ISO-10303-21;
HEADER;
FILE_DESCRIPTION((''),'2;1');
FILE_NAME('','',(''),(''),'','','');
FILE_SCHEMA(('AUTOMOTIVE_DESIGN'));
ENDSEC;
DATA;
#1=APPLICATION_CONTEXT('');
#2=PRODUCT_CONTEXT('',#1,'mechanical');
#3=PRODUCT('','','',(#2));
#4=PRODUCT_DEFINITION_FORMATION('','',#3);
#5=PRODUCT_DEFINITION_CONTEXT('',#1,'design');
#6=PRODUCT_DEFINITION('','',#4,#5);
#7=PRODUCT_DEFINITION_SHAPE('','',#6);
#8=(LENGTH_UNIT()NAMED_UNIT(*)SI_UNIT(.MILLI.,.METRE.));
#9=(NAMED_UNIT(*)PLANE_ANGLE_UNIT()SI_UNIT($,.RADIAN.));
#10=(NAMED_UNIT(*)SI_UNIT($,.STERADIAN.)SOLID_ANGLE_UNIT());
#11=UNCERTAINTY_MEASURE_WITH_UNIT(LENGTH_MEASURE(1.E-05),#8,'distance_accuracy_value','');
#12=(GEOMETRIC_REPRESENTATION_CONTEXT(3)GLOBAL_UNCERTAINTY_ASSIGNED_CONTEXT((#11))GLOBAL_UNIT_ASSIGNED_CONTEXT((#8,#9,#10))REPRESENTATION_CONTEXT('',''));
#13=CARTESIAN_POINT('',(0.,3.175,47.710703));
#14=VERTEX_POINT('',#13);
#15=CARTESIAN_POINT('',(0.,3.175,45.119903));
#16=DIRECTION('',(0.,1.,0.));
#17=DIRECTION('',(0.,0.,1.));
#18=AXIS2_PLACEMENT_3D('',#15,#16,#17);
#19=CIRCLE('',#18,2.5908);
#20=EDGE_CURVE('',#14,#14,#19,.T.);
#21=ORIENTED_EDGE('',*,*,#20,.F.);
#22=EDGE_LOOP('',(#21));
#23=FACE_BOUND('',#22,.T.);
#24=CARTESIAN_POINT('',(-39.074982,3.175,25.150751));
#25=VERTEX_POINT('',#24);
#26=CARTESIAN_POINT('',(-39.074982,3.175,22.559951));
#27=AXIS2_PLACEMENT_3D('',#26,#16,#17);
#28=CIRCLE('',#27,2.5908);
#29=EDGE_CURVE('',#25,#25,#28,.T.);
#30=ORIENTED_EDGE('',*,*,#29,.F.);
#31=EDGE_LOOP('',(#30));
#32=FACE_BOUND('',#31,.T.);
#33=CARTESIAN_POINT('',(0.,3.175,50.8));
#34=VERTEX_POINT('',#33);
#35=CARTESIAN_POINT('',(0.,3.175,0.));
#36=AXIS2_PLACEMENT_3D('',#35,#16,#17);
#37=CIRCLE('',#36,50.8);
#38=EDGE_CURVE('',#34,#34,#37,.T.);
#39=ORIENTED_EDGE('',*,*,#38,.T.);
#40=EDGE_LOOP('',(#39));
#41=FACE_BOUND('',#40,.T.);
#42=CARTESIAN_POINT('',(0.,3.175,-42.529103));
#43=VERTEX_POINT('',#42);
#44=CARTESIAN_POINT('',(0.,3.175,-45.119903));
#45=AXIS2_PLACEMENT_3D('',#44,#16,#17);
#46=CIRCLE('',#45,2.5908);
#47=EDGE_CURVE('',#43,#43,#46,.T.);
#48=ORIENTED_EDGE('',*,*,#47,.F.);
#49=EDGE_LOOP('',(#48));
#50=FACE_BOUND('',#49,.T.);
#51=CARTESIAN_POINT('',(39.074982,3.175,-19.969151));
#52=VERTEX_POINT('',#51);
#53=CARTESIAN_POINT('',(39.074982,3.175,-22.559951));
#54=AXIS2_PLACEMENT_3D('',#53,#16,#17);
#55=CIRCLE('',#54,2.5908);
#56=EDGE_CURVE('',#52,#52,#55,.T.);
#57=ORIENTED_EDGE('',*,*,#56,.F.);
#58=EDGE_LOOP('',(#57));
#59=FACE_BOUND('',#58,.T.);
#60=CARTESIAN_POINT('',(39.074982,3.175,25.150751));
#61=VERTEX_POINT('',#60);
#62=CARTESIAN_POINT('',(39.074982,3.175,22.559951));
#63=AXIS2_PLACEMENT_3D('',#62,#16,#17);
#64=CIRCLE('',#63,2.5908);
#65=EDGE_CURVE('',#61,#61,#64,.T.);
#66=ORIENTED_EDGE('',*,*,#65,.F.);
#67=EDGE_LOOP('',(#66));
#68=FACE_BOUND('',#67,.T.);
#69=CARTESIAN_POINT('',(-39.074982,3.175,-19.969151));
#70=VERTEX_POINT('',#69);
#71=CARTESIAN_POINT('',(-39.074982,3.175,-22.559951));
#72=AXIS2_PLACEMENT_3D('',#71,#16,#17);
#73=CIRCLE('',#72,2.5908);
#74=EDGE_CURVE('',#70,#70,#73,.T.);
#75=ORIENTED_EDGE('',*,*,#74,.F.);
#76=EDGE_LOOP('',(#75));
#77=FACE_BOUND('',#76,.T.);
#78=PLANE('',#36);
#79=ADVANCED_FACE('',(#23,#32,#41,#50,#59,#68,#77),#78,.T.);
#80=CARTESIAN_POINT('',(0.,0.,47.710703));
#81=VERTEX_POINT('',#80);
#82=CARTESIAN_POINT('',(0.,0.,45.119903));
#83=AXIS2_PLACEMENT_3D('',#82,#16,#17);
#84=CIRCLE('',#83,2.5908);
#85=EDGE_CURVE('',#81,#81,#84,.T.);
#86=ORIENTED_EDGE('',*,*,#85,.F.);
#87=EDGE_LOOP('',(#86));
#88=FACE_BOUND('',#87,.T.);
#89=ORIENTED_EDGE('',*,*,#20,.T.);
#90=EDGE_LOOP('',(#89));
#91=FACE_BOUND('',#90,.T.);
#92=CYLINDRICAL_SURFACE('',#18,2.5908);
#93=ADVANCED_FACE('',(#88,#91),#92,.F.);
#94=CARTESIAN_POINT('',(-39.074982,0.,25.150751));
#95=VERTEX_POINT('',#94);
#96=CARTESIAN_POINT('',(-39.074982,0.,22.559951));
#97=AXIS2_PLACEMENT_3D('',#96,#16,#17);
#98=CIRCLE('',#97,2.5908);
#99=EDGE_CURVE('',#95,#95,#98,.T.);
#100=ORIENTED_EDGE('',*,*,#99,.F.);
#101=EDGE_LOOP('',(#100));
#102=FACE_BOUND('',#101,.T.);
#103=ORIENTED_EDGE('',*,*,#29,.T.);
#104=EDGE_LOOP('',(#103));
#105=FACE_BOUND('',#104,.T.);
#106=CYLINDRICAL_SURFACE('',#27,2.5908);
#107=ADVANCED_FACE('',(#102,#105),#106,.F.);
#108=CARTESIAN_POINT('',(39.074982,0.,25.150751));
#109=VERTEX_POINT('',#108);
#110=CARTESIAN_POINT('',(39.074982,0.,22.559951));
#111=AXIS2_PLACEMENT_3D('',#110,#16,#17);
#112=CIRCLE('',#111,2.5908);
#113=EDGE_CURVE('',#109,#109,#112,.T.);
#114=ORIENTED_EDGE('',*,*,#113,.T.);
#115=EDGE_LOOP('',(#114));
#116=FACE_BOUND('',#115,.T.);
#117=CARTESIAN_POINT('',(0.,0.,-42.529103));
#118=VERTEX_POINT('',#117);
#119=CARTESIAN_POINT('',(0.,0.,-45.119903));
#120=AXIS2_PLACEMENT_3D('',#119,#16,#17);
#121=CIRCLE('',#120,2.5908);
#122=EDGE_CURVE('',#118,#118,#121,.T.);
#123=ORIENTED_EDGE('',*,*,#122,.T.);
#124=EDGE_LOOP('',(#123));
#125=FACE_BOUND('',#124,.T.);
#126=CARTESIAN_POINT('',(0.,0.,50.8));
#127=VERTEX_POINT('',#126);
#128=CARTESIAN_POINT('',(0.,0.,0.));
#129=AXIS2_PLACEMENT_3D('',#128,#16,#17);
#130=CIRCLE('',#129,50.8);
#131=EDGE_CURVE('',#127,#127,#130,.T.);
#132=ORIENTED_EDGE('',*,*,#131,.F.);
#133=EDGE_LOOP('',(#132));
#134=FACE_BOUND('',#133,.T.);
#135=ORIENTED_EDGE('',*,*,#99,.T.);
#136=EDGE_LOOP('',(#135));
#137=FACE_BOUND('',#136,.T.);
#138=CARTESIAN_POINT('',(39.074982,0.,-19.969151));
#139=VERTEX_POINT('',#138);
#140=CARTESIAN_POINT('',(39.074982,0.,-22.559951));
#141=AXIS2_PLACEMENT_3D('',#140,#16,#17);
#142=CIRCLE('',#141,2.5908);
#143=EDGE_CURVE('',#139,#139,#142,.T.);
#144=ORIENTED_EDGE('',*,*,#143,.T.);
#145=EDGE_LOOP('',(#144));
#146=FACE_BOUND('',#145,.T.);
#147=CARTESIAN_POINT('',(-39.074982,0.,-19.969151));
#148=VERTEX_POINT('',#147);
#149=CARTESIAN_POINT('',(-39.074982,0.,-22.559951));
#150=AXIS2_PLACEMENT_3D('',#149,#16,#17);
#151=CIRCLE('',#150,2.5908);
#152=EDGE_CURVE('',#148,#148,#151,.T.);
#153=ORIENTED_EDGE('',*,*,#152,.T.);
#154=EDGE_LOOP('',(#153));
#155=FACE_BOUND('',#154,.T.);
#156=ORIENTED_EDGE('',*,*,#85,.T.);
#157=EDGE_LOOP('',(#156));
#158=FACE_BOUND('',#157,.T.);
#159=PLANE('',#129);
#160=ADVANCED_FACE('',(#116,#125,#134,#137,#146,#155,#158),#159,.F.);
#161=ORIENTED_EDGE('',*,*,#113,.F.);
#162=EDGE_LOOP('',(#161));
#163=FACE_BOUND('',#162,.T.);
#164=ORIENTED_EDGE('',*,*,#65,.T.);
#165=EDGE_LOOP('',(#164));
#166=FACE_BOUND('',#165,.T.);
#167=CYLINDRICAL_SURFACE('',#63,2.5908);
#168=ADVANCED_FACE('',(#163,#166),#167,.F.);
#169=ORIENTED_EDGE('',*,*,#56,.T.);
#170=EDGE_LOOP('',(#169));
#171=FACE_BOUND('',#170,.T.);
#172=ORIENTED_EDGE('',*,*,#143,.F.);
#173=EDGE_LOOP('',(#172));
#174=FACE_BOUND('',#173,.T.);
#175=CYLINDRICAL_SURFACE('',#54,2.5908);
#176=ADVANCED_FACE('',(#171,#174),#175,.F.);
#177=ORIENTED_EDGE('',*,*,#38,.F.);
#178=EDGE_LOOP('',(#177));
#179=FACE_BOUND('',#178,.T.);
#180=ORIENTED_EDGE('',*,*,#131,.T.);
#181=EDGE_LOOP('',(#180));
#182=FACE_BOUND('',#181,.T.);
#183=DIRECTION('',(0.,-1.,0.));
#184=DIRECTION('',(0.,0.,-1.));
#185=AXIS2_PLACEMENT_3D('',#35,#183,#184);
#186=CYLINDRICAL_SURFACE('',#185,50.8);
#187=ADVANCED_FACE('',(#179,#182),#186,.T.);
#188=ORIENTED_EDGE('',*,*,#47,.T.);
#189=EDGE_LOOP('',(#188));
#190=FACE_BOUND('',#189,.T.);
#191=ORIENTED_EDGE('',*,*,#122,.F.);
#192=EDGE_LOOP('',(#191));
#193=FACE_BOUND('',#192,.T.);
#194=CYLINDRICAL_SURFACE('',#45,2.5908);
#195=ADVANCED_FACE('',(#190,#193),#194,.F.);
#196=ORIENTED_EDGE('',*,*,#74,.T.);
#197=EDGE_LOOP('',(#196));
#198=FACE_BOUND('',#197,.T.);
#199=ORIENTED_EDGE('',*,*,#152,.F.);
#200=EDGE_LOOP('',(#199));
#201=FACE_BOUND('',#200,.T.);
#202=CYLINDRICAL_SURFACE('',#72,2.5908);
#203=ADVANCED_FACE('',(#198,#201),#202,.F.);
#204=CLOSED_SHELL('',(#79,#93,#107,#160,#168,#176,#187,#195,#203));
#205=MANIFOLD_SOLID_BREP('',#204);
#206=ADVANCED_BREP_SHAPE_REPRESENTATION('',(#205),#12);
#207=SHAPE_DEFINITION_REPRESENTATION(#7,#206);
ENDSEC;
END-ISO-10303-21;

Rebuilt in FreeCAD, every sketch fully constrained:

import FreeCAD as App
import Part
import Sketcher
from FreeCAD import Vector
Q = App.Units.Quantity

doc = App.newDocument("Part")
body = doc.addObject("PartDesign::Body", "Body")

# Sketch on XZ plane
sketch1 = body.newObject("Sketcher::SketchObject", "Sketch")
sketch1.AttachmentSupport = (doc.getObject("XZ_Plane"), [""])
sketch1.MapMode = "FlatFace"
sketch1.addGeometry(Part.Circle(Vector(0, 0, 0), Vector(0, 0, 1), 50.8), False)
sketch1.addConstraint(Sketcher.Constraint("Coincident", 0, 3, -1, 1))
sketch1.addConstraint(Sketcher.Constraint("Diameter", 0, Q("4 in")))
pad1 = body.newObject("PartDesign::Pad", "Pad")
pad1.Profile = sketch1
pad1.Length = Q("0.125 in")
pad1.Reversed = True

# Sketch on XZ plane
sketch2 = body.newObject("Sketcher::SketchObject", "Sketch001")
sketch2.AttachmentSupport = (doc.getObject("XZ_Plane"), [""])
sketch2.MapMode = "FlatFace"
sketch2.AttachmentOffset = App.Placement(Vector(0, 0, -0.125 * 25.4), App.Rotation())
sketch2.addGeometry(Part.Circle(Vector(0, -45.119903, 0), Vector(0, 0, 1), 2.5908), False)
sketch2.addConstraint(Sketcher.Constraint("PointOnObject", 0, 3, -2))
sketch2.addConstraint(Sketcher.Constraint("Diameter", 0, Q("0.204 in")))
sketch2.addConstraint(Sketcher.Constraint("DistanceY", 0, 3, -1, 1, Q("45.119903 mm")))
doc.recompute()
hole = body.newObject("PartDesign::Hole", "Hole")
hole.Profile = sketch2
hole.ThreadType = "None"
hole.Diameter = Q("0.204 in")
hole.DepthType = "ThroughAll"
hole.Reversed = True
doc.recompute()

polarpattern = body.newObject("PartDesign::PolarPattern", "PolarPattern")
polarpattern.Originals = [hole]
polarpattern.Axis = (doc.getObject("Y_Axis"), [""])
polarpattern.Angle = 360
polarpattern.Occurrences = 6
body.Tip = polarpattern

doc.recompute()
